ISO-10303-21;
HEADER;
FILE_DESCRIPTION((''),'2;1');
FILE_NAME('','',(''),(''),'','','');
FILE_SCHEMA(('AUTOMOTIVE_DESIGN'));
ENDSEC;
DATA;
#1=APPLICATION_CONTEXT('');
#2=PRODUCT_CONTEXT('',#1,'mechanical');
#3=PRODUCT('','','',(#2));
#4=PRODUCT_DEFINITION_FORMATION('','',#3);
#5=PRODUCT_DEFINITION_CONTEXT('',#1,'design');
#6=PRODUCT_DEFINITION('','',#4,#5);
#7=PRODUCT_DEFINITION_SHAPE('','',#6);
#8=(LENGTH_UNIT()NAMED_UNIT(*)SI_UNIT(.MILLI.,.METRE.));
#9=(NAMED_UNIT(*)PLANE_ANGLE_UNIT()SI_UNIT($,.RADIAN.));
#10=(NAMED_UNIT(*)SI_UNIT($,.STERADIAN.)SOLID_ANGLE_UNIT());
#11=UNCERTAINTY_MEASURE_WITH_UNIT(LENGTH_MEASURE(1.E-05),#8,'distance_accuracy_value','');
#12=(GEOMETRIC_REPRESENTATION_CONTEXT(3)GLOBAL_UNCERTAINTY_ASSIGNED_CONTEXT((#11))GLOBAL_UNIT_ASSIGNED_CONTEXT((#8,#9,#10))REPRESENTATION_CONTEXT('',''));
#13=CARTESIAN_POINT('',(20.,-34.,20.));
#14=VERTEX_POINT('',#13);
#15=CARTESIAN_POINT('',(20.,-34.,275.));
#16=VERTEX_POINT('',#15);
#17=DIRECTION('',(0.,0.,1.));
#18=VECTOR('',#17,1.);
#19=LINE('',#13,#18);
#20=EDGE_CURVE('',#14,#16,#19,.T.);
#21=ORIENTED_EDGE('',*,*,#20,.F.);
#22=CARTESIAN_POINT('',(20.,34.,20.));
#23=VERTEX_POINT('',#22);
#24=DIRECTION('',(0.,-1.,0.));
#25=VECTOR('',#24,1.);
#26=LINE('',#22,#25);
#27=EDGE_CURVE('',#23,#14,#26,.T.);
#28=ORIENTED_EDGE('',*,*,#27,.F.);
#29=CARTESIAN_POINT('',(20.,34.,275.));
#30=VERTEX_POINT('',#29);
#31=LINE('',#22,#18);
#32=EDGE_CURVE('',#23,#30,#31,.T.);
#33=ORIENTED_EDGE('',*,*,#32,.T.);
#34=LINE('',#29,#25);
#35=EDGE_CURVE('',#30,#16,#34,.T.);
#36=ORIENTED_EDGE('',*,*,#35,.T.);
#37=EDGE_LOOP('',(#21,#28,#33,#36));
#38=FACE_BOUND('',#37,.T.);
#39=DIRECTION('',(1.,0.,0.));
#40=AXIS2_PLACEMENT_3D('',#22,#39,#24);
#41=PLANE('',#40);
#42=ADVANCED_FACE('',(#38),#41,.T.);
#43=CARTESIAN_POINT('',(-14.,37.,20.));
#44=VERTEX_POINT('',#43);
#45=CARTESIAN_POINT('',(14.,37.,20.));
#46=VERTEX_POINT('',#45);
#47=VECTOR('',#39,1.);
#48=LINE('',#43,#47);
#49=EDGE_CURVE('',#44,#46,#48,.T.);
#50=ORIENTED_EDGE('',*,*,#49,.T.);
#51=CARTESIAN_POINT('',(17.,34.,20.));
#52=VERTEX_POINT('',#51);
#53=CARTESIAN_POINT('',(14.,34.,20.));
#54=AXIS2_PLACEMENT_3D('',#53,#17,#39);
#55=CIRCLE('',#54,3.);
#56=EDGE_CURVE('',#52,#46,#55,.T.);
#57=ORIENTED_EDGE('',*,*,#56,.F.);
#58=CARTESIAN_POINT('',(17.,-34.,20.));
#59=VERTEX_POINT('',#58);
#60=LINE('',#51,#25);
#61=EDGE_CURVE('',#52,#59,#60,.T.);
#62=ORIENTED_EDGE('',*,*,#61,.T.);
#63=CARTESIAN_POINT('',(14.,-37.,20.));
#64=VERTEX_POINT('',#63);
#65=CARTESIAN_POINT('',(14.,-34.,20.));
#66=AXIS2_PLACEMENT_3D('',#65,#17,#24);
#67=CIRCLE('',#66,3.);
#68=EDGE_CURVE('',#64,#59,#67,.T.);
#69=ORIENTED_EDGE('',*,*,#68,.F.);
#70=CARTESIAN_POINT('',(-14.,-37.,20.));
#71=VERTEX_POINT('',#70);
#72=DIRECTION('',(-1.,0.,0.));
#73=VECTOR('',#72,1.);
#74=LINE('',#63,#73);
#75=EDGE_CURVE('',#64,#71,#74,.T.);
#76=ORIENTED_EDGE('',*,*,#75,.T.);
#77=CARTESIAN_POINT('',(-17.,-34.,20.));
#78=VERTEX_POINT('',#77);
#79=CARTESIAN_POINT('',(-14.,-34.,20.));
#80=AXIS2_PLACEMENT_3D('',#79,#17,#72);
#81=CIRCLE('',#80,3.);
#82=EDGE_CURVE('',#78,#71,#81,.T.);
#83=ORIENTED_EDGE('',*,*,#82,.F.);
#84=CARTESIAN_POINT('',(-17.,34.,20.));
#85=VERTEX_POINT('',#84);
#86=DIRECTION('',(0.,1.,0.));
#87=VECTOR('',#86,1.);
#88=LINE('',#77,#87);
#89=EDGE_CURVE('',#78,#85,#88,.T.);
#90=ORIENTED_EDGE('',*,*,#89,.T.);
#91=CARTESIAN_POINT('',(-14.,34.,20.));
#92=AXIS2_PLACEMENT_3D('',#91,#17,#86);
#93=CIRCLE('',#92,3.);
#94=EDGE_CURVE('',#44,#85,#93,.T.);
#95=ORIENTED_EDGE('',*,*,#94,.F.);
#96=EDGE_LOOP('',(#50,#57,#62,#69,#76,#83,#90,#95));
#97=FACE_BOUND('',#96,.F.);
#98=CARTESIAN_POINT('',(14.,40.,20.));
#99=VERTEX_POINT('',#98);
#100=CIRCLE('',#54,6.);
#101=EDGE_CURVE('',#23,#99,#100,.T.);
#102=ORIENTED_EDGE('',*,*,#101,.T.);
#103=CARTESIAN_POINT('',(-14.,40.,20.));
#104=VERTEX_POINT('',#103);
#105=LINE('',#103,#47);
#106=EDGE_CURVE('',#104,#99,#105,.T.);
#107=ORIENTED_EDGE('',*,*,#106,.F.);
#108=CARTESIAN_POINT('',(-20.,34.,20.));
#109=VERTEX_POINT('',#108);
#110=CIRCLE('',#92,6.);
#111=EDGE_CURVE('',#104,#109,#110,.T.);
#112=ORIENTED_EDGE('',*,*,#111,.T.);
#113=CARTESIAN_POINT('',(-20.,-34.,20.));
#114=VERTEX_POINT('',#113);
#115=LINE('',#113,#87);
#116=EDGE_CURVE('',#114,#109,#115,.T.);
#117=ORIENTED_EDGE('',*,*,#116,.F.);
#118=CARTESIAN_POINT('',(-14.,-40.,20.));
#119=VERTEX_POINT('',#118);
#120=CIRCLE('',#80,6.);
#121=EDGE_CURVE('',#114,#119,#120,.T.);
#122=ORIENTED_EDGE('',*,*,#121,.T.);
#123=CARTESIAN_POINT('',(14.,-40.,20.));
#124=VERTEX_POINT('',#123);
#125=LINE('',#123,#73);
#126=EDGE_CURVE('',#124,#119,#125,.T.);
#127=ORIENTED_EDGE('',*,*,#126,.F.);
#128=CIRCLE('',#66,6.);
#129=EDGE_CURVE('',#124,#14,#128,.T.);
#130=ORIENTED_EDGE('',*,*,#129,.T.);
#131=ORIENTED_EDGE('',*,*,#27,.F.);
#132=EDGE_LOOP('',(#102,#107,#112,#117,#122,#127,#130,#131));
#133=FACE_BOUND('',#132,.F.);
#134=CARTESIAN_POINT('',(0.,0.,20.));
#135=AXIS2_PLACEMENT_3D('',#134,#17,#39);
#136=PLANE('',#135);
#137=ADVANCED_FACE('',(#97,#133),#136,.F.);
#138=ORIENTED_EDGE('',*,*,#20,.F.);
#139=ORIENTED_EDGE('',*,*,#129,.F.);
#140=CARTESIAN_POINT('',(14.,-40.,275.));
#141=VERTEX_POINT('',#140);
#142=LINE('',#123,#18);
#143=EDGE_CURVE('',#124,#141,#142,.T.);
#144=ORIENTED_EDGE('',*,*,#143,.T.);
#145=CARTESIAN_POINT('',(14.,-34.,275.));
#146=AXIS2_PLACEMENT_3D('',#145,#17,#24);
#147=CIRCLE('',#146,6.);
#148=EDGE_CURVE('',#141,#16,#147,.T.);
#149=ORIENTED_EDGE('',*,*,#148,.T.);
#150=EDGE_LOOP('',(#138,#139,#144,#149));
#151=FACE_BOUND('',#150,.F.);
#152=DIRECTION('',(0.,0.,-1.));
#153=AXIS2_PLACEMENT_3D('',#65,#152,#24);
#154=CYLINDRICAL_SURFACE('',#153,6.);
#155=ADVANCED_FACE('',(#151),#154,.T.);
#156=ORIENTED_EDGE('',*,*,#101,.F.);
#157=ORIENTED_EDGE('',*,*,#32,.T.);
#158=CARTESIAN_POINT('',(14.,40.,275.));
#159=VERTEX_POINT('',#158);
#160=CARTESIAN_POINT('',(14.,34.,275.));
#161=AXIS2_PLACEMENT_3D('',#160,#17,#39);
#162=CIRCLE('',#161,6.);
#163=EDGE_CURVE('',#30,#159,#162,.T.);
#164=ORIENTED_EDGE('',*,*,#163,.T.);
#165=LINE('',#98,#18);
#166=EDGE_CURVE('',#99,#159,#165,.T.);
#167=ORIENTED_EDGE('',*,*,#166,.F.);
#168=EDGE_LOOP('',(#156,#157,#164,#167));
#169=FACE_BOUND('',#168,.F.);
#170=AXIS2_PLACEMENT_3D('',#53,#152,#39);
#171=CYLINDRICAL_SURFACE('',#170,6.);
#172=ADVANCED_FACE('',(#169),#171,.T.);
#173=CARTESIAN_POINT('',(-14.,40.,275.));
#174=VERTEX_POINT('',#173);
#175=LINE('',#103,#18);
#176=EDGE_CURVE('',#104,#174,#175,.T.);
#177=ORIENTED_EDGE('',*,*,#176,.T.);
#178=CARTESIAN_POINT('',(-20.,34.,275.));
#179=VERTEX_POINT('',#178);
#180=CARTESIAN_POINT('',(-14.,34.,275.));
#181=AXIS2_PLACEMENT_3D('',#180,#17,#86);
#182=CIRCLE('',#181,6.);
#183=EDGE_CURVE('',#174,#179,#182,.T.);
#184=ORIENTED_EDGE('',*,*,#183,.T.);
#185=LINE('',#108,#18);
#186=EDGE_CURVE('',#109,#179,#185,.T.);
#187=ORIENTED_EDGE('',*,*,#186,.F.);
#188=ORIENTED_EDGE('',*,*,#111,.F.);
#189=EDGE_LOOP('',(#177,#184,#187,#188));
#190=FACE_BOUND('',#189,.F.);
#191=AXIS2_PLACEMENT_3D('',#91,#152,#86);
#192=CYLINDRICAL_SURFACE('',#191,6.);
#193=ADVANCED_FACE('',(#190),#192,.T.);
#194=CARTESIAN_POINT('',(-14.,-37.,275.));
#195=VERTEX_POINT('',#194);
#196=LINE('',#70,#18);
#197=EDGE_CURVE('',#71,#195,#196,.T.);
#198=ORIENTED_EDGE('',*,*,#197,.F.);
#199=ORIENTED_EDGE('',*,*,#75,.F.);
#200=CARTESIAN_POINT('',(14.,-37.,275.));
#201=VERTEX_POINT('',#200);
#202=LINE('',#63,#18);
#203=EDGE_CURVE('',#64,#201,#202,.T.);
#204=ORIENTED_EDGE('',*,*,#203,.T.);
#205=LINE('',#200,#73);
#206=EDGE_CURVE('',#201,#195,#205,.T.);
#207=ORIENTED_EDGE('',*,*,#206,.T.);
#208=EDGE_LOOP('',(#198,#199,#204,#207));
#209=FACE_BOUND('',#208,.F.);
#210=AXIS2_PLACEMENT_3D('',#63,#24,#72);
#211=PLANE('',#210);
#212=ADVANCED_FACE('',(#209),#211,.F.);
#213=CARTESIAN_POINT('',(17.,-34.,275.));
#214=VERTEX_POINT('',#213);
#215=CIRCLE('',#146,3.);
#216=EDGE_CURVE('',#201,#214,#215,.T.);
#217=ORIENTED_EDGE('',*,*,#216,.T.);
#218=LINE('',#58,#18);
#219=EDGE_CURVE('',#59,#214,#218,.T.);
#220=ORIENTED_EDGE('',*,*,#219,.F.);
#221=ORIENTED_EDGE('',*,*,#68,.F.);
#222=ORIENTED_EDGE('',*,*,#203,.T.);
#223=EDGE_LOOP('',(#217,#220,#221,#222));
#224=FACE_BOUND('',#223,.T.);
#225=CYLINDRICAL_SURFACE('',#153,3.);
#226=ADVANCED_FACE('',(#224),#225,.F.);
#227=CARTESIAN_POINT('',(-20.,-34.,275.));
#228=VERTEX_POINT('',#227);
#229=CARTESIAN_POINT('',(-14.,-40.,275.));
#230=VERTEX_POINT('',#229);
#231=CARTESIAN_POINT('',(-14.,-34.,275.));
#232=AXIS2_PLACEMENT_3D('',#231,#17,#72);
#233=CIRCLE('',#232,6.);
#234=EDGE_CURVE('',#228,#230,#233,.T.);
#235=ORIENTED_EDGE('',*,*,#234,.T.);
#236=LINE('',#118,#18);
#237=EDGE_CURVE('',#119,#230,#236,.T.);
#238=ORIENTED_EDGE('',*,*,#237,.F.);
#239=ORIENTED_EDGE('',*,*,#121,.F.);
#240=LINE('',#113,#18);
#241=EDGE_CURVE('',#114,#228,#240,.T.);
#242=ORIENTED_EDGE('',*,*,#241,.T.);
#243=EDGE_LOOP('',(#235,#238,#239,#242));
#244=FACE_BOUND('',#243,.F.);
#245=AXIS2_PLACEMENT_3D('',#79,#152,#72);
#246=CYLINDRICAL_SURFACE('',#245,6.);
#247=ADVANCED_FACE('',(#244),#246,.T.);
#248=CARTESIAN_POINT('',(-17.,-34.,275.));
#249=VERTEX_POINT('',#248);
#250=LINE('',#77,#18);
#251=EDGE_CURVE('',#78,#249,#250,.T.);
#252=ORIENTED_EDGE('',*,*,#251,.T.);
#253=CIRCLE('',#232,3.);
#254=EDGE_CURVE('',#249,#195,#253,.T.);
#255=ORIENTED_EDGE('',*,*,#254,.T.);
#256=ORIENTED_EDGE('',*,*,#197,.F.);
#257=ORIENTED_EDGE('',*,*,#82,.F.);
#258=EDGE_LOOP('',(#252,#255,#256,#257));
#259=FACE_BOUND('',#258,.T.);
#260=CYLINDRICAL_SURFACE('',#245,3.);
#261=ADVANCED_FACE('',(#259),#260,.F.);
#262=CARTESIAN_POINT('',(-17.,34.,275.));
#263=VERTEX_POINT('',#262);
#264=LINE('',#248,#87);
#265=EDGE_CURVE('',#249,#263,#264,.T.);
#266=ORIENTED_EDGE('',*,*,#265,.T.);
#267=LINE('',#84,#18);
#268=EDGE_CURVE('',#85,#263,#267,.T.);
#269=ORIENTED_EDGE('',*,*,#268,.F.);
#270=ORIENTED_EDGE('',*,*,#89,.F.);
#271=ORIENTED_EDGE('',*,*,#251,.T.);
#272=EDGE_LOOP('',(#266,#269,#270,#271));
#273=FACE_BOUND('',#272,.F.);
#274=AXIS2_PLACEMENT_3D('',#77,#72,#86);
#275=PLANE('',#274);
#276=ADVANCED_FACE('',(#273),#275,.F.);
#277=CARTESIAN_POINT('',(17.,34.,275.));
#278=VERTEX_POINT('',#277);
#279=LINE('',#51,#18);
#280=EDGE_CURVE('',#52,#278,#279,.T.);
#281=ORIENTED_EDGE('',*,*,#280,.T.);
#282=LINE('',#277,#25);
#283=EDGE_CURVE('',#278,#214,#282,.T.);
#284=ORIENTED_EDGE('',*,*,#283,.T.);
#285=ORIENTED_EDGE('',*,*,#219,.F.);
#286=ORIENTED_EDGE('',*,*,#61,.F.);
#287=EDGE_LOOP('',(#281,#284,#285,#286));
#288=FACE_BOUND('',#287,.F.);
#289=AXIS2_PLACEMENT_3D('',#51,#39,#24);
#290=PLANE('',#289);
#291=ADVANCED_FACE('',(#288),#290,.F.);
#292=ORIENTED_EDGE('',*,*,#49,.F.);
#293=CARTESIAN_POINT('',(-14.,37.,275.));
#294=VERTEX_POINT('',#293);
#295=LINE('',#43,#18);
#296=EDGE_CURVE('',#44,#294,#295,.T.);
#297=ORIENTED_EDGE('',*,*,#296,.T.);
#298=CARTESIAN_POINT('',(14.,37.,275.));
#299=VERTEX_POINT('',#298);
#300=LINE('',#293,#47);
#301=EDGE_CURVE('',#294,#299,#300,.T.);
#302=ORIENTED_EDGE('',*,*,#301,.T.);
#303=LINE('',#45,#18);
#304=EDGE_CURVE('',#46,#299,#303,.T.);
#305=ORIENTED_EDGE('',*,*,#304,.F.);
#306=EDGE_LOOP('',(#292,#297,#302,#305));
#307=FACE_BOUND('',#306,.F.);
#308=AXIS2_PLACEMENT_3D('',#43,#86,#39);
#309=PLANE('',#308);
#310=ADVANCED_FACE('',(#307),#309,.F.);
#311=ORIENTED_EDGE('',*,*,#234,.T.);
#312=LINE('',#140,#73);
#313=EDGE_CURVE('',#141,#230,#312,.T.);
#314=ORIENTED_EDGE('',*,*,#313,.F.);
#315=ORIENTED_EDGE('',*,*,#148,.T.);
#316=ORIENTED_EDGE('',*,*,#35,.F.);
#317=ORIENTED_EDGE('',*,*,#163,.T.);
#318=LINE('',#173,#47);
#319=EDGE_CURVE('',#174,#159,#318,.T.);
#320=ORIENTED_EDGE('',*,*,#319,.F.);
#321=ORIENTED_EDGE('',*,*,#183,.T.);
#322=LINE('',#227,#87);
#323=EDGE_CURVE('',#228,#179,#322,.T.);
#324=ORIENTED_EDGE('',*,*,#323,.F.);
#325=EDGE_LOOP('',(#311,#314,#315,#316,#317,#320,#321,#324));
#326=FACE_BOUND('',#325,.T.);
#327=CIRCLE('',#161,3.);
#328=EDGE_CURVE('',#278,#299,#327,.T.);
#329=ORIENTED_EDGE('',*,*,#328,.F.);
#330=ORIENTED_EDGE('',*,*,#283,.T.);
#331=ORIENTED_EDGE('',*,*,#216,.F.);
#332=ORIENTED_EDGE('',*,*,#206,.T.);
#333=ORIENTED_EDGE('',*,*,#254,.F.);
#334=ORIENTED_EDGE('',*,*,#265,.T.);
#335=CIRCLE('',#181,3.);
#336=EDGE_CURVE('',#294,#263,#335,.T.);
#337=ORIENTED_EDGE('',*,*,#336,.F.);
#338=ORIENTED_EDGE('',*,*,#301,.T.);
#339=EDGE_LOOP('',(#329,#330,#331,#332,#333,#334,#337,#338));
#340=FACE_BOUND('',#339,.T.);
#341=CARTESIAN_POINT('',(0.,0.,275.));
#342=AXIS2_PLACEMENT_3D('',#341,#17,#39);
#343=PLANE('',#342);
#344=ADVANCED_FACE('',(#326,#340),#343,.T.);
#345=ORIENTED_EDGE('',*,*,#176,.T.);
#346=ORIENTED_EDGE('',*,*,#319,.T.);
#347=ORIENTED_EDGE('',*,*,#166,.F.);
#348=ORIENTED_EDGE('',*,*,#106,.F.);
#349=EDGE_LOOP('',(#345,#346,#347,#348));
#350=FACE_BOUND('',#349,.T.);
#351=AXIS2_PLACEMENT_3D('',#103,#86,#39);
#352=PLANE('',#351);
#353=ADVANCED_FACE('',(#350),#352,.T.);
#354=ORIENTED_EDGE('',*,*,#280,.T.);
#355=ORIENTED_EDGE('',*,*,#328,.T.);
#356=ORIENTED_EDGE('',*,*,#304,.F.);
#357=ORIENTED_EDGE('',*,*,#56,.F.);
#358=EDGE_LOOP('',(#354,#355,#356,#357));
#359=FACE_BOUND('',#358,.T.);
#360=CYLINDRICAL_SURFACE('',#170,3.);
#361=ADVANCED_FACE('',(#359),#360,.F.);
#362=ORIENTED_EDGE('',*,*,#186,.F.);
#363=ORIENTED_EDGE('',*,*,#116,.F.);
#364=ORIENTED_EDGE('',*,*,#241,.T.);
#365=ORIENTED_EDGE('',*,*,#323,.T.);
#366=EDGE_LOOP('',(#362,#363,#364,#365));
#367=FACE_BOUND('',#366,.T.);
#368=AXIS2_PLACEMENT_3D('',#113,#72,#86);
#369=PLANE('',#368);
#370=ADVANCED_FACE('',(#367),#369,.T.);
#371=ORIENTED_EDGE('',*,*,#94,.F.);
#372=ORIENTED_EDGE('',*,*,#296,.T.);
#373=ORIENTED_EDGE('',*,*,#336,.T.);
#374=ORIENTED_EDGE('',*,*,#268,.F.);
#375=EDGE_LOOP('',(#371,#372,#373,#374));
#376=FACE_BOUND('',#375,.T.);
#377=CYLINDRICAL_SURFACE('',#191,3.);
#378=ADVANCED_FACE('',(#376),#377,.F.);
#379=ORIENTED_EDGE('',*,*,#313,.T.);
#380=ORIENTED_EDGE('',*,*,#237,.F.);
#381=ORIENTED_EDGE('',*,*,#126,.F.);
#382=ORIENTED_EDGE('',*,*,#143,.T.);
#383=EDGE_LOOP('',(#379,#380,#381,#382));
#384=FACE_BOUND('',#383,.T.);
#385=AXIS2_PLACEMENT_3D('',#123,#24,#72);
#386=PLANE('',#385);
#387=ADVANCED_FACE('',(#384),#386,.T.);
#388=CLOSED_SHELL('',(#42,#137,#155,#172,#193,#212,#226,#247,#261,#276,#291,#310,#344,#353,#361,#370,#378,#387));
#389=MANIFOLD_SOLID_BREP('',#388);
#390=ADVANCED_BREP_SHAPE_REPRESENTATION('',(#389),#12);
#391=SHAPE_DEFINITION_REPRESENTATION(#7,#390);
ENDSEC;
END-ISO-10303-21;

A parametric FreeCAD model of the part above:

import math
import FreeCAD as App
import Part
import Sketcher

doc = App.newDocument("Part")
body = doc.addObject("PartDesign::Body", "Body")

# Sketch on XY plane
sketch1 = body.newObject("Sketcher::SketchObject", "Sketch")
sketch1.AttachmentSupport = (doc.getObject("XY_Plane"), [""])
sketch1.MapMode = "FlatFace"
sketch1.AttachmentOffset = App.Placement(App.Vector(0, 0, 20), App.Rotation())
sketch1.addGeometry(Part.LineSegment(App.Vector(-20, 34, 0), App.Vector(-20, -34, 0)), False)
sketch1.addGeometry(Part.ArcOfCircle(Part.Circle(App.Vector(-14, -34, 0), App.Vector(0, 0, 1), 6), math.radians(180), math.radians(270)), False)
sketch1.addGeometry(Part.LineSegment(App.Vector(-14, -40, 0), App.Vector(14, -40, 0)), False)
sketch1.addGeometry(Part.ArcOfCircle(Part.Circle(App.Vector(14, -34, 0), App.Vector(0, 0, 1), 6), math.radians(-90), math.radians(0)), False)
sketch1.addGeometry(Part.LineSegment(App.Vector(20, -34, 0), App.Vector(20, 34, 0)), False)
sketch1.addGeometry(Part.ArcOfCircle(Part.Circle(App.Vector(14, 34, 0), App.Vector(0, 0, 1), 6), math.radians(0), math.radians(90)), False)
sketch1.addGeometry(Part.LineSegment(App.Vector(14, 40, 0), App.Vector(-14, 40, 0)), False)
sketch1.addGeometry(Part.ArcOfCircle(Part.Circle(App.Vector(-14, 34, 0), App.Vector(0, 0, 1), 6), math.radians(90), math.radians(180)), False)
sketch1.addGeometry(Part.ArcOfCircle(Part.Circle(App.Vector(-14, 34, 0), App.Vector(0, 0, 1), 3), math.radians(90), math.radians(180)), False)
sketch1.addGeometry(Part.LineSegment(App.Vector(-14, 37, 0), App.Vector(14, 37, 0)), False)
sketch1.addGeometry(Part.ArcOfCircle(Part.Circle(App.Vector(14, 34, 0), App.Vector(0, 0, 1), 3), math.radians(0), math.radians(90)), False)
sketch1.addGeometry(Part.LineSegment(App.Vector(17, 34, 0), App.Vector(17, -34, 0)), False)
sketch1.addGeometry(Part.ArcOfCircle(Part.Circle(App.Vector(14, -34, 0), App.Vector(0, 0, 1), 3), math.radians(-90), math.radians(0)), False)
sketch1.addGeometry(Part.LineSegment(App.Vector(14, -37, 0), App.Vector(-14, -37, 0)), False)
sketch1.addGeometry(Part.ArcOfCircle(Part.Circle(App.Vector(-14, -34, 0), App.Vector(0, 0, 1), 3), math.radians(180), math.radians(270)), False)
sketch1.addGeometry(Part.LineSegment(App.Vector(-17, -34, 0), App.Vector(-17, 34, 0)), False)
sketch1.addConstraint(Sketcher.Constraint("Tangent", 0, 2, 1, 1))
sketch1.addConstraint(Sketcher.Constraint("Tangent", 1, 2, 2, 1))
sketch1.addConstraint(Sketcher.Constraint("Tangent", 2, 2, 3, 1))
sketch1.addConstraint(Sketcher.Constraint("Tangent", 3, 2, 4, 1))
sketch1.addConstraint(Sketcher.Constraint("Tangent", 4, 2, 5, 1))
sketch1.addConstraint(Sketcher.Constraint("Tangent", 5, 2, 6, 1))
sketch1.addConstraint(Sketcher.Constraint("Tangent", 6, 2, 7, 1))
sketch1.addConstraint(Sketcher.Constraint("Tangent", 7, 2, 0, 1))
sketch1.addConstraint(Sketcher.Constraint("Tangent", 8, 1, 9, 1))
sketch1.addConstraint(Sketcher.Constraint("Tangent", 9, 2, 10, 2))
sketch1.addConstraint(Sketcher.Constraint("Tangent", 10, 1, 11, 1))
sketch1.addConstraint(Sketcher.Constraint("Tangent", 11, 2, 12, 2))
sketch1.addConstraint(Sketcher.Constraint("Tangent", 12, 1, 13, 1))
sketch1.addConstraint(Sketcher.Constraint("Tangent", 13, 2, 14, 2))
sketch1.addConstraint(Sketcher.Constraint("Tangent", 14, 1, 15, 1))
sketch1.addConstraint(Sketcher.Constraint("Tangent", 15, 2, 8, 2))
sketch1.addConstraint(Sketcher.Constraint("Vertical", 0))
sketch1.addConstraint(Sketcher.Constraint("Horizontal", 2))
sketch1.addConstraint(Sketcher.Constraint("Vertical", 4))
sketch1.addConstraint(Sketcher.Constraint("Horizontal", 6))
sketch1.addConstraint(Sketcher.Constraint("Horizontal", 9))
sketch1.addConstraint(Sketcher.Constraint("Vertical", 11))
sketch1.addConstraint(Sketcher.Constraint("Horizontal", 13))
sketch1.addConstraint(Sketcher.Constraint("Vertical", 15))
sketch1.addConstraint(Sketcher.Constraint("Coincident", 8, 3, 7, 3))
sketch1.addConstraint(Sketcher.Constraint("Coincident", 10, 3, 5, 3))
sketch1.addConstraint(Sketcher.Constraint("Coincident", 12, 3, 3, 3))
sketch1.addConstraint(Sketcher.Constraint("Equal", 1, 3))
sketch1.addConstraint(Sketcher.Constraint("Equal", 3, 5))
sketch1.addConstraint(Sketcher.Constraint("Equal", 5, 7))
sketch1.addConstraint(Sketcher.Constraint("Equal", 12, 14))
sketch1.addConstraint(Sketcher.Constraint("Symmetric", 1, 3, 5, 3, -1, 1))
sketch1.addConstraint(Sketcher.Constraint("Radius", 1, 6.0))
sketch1.addConstraint(Sketcher.Constraint("Radius", 8, 3.0))
sketch1.addConstraint(Sketcher.Constraint("DistanceX", 0, 2, -1, 1, 20.0))
sketch1.addConstraint(Sketcher.Constraint("DistanceY", 1, 2, -1, 1, 40.0))
pad1 = body.newObject("PartDesign::Pad", "Pad")
pad1.Profile = sketch1
pad1.Length = 255

doc.recompute()
